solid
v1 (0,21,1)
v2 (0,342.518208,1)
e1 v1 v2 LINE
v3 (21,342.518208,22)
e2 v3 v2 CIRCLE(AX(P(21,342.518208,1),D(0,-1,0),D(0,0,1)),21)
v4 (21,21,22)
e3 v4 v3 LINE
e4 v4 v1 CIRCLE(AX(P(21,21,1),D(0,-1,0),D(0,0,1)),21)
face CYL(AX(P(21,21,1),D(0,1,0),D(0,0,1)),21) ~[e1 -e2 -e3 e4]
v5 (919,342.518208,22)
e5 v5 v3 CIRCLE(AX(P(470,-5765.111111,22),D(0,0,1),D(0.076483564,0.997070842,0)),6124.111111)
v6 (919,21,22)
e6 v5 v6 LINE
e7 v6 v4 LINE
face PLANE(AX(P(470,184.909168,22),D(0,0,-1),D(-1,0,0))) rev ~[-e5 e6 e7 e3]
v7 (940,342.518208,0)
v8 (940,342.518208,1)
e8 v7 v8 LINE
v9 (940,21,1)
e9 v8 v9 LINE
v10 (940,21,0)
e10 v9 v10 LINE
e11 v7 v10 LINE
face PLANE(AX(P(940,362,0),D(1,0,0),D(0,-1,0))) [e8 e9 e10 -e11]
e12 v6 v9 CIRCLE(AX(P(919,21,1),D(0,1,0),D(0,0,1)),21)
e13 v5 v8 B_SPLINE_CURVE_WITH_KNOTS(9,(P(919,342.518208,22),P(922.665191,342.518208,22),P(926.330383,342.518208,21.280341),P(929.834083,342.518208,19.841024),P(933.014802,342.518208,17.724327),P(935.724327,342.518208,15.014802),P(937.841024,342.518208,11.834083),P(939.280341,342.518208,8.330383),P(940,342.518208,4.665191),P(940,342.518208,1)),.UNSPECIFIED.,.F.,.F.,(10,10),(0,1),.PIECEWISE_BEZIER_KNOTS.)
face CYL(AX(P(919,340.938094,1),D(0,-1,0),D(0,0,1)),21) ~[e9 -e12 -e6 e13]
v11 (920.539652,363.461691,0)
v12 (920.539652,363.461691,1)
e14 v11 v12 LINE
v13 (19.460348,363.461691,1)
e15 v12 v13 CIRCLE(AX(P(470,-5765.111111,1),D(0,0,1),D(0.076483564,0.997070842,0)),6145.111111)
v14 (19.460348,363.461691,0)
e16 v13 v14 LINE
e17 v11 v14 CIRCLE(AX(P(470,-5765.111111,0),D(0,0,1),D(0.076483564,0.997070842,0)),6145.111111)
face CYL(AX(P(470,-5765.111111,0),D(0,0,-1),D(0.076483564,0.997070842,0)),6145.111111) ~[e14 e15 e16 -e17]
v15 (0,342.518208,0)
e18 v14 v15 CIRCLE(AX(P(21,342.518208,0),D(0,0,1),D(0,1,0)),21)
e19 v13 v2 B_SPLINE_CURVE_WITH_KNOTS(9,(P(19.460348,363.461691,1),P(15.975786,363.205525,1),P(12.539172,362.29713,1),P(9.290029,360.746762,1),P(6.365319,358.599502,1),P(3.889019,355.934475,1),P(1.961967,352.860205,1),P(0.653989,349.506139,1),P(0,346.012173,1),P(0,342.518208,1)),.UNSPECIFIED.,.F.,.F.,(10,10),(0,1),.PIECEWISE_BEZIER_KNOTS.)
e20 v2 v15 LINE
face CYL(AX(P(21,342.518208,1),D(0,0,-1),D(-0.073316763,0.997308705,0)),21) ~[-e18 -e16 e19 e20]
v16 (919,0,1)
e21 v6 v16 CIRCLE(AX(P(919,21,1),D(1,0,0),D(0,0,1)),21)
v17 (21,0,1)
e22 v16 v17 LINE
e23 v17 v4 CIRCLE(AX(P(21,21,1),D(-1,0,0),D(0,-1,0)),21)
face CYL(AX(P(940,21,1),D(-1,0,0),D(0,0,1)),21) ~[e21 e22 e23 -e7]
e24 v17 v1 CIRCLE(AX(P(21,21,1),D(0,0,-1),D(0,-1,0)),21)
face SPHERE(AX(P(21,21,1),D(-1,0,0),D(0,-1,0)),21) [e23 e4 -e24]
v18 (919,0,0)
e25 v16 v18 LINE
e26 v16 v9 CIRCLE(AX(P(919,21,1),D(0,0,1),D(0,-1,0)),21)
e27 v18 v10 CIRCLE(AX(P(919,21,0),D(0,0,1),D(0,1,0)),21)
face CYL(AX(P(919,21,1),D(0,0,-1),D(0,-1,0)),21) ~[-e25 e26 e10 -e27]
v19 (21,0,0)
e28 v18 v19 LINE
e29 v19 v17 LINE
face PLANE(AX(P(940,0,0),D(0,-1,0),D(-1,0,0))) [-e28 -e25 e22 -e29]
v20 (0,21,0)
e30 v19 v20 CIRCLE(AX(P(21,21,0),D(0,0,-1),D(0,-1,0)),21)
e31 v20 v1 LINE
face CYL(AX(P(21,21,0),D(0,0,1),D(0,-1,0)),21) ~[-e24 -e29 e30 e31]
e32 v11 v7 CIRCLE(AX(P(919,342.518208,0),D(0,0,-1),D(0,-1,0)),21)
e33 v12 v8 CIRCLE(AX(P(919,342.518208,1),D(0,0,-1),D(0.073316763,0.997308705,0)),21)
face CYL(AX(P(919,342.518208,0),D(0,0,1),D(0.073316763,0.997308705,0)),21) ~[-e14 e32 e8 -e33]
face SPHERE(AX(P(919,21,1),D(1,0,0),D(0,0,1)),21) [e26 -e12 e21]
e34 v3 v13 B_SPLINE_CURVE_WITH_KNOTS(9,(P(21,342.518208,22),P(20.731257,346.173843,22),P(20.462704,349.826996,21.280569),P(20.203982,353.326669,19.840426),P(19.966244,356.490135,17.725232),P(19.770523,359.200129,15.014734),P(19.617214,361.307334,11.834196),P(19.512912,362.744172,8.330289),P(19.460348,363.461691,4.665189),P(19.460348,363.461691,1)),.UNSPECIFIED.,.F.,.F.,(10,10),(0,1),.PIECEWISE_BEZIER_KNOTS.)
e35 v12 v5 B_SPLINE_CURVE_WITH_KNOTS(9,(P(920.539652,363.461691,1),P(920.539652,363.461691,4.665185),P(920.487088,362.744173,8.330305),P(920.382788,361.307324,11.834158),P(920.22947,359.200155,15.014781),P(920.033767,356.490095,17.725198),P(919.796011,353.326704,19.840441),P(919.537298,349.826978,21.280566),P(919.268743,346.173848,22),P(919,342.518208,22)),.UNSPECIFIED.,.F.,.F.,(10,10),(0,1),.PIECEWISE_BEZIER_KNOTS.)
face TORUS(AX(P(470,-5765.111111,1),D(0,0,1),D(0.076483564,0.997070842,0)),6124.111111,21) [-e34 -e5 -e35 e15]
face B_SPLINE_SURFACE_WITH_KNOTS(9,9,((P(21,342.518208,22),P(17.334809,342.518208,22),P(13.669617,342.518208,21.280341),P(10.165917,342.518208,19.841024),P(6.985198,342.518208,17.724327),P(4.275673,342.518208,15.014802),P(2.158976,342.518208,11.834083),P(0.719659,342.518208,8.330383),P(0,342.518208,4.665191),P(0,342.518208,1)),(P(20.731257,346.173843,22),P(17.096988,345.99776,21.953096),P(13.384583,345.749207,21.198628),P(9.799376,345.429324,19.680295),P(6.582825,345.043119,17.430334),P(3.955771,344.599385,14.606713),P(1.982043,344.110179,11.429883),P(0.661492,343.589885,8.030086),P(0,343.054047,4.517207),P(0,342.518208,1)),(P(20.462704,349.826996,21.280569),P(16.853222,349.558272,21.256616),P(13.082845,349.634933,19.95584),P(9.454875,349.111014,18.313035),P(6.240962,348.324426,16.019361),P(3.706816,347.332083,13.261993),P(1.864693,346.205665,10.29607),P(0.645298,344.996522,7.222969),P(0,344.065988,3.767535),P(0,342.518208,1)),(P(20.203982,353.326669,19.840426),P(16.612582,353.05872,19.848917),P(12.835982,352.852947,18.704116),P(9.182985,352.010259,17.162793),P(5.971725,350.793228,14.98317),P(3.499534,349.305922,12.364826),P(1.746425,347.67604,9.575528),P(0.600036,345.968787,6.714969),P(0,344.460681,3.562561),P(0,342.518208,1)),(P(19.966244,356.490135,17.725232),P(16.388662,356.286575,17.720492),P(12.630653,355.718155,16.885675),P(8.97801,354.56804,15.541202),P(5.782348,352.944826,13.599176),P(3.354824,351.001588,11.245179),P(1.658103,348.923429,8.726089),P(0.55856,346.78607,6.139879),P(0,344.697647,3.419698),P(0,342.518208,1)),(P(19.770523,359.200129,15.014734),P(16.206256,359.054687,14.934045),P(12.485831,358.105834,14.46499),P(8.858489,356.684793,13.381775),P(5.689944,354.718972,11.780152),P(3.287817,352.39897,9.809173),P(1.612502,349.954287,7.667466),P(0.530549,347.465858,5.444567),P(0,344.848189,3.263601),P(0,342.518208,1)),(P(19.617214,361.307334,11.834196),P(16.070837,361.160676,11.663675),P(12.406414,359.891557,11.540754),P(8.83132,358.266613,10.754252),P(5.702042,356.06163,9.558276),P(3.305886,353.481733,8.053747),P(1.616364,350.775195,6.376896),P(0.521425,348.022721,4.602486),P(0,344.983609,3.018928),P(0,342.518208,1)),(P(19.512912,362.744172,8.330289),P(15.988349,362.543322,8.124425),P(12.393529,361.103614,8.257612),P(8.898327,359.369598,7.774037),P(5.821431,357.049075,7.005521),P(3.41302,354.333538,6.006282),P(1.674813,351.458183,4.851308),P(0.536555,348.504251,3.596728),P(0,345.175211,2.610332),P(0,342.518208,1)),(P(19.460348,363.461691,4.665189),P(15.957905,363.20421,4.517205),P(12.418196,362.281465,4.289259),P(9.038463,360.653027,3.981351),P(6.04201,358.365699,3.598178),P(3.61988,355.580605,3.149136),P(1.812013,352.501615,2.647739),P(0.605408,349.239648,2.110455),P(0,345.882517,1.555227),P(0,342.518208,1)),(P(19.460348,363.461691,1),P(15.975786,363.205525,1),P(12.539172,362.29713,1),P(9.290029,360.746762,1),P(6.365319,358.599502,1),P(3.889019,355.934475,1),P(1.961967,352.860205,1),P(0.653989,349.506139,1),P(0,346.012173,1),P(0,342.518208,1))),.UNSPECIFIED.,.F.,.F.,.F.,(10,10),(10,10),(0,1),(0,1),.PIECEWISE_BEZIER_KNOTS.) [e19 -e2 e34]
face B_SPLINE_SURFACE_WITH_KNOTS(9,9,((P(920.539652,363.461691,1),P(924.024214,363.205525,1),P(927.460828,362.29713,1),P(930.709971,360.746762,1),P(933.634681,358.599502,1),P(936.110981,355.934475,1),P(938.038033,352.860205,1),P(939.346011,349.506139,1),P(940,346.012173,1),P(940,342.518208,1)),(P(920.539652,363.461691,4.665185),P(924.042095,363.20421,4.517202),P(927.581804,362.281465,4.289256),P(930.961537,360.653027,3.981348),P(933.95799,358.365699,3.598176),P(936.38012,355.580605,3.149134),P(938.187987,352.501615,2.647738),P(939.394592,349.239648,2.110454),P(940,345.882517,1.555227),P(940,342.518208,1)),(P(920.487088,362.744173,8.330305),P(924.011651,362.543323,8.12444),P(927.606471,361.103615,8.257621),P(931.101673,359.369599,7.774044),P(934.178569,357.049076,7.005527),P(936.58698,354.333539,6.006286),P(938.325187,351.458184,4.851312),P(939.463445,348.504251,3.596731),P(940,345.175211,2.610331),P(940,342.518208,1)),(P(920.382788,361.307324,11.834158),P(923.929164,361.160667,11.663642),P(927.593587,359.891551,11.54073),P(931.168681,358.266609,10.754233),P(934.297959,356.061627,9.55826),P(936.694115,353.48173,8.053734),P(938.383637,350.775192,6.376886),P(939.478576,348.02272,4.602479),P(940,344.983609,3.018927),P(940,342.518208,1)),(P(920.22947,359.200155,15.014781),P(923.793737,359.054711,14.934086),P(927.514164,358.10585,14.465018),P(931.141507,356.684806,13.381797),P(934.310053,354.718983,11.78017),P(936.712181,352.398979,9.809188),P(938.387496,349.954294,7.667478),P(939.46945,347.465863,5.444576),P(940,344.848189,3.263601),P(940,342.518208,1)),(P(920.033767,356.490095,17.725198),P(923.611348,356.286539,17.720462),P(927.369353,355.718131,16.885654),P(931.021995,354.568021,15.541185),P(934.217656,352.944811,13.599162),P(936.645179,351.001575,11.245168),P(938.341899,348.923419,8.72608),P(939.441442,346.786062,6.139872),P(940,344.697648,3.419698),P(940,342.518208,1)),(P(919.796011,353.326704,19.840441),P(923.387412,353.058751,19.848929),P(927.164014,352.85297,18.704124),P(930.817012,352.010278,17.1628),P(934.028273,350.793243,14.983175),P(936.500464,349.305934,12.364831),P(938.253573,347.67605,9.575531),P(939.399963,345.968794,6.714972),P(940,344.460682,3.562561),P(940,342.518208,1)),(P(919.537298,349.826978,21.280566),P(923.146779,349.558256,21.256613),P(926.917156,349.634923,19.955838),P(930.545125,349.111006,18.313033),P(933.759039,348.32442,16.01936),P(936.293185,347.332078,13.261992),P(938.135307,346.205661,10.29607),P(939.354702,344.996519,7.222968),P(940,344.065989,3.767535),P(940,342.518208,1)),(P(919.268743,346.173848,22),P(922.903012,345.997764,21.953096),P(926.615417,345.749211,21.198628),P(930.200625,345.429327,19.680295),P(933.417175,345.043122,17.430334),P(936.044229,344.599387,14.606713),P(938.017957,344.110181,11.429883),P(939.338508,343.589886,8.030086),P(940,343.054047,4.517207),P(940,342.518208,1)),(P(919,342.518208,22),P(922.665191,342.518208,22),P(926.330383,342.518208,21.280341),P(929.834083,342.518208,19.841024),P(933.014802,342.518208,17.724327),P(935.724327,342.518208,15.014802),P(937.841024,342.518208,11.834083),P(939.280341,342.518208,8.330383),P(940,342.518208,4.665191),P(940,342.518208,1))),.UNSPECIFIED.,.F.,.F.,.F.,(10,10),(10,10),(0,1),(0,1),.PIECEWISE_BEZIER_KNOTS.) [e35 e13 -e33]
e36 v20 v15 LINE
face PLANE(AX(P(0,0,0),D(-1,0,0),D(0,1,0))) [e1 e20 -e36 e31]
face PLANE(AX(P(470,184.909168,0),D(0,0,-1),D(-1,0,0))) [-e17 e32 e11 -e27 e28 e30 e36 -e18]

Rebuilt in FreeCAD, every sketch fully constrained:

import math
import FreeCAD as App
import Part
import Sketcher
from FreeCAD import Vector
Q = App.Units.Quantity


def edges_at(feature, points):
    """Names of the edges that pass closest to the given points."""
    edges = feature.Shape.Edges
    near = lambda p: min(range(len(edges)), key=lambda i: edges[i].distToShape(Part.Vertex(*p))[0])
    return sorted({f"Edge{near(p) + 1}" for p in points})

doc = App.newDocument("Part")
body = doc.addObject("PartDesign::Body", "Body")

# Sketch on XY plane
sketch1 = body.newObject("Sketcher::SketchObject", "Sketch")
sketch1.AttachmentSupport = (doc.getObject("XY_Plane"), [""])
sketch1.MapMode = "FlatFace"
sketch1.addGeometry([
    Part.LineSegment(Vector(940, 0, 0), Vector(940, 362, 0)),
    Part.ArcOfCircle(Part.Circle(Vector(470, -5765, 0), Vector(0, 0, 1), 6145), math.radians(85.61), math.radians(94.39)),
    Part.LineSegment(Vector(0, 362, 0), Vector(0, 0, 0)),
    Part.LineSegment(Vector(0, 0, 0), Vector(940, 0, 0)),
], False)
sketch1.addConstraint([
    Sketcher.Constraint("Coincident", 0, 2, 1, 1),
    Sketcher.Constraint("Coincident", 1, 2, 2, 1),
    Sketcher.Constraint("Coincident", 2, 2, 3, 1),
    Sketcher.Constraint("Coincident", 3, 2, 0, 1),
    Sketcher.Constraint("Vertical", 0),
    Sketcher.Constraint("Vertical", 2),
    Sketcher.Constraint("Horizontal", 3),
    Sketcher.Constraint("Coincident", 2, 2, -1, 1),
    Sketcher.Constraint("Equal", 0, 2),
    Sketcher.Constraint("DistanceX", 3, 1, 3, 2, Q("940 mm")),
    Sketcher.Constraint("DistanceY", 0, 1, 0, 2, Q("362 mm")),
    Sketcher.Constraint("Radius", 1, Q("6145.111111 mm")),
])
pad1 = body.newObject("PartDesign::Pad", "Pad")
pad1.Profile = sketch1
pad1.Length = 22
doc.recompute()

fillet = body.newObject("PartDesign::Fillet", "Fillet")
fillet.Base = (pad1, edges_at(pad1, [(470, 380, 22)]))
fillet.Radius = 21
doc.recompute()

fillet2 = body.newObject("PartDesign::Fillet", "Fillet001")
fillet2.Base = (fillet, edges_at(fillet, [(470, 0, 22)]))
fillet2.Radius = 21
doc.recompute()

fillet3 = body.newObject("PartDesign::Fillet", "Fillet002")
fillet3.Base = (fillet2, edges_at(fillet2, [(0, 180.969, 22)]))
fillet3.Radius = 21
doc.recompute()

fillet4 = body.newObject("PartDesign::Fillet", "Fillet003")
fillet4.Base = (fillet3, edges_at(fillet3, [(940, 180.969, 22)]))
fillet4.Radius = 21

doc.recompute()
